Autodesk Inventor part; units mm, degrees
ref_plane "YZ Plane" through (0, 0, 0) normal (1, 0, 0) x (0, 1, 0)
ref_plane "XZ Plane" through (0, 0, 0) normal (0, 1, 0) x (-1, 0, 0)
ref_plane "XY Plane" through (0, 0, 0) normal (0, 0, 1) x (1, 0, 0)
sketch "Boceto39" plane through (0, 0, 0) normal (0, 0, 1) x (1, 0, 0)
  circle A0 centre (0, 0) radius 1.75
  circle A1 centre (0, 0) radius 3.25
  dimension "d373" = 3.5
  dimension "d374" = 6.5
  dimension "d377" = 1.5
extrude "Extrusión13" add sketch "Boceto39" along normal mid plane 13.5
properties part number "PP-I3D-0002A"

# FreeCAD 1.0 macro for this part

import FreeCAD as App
import Part
import Sketcher

V = App.Vector

doc = App.newDocument("Part")
body = doc.addObject("PartDesign::Body", "Body")

sketch1 = doc.addObject("Sketcher::SketchObject", "Sketch")
body.addObject(sketch1)
sketch1.AttachmentSupport = (doc.XY_Plane, [""])
sketch1.MapMode = "FlatFace"
sketch1.addGeometry([
    Part.Circle(V(0, 0, 0), V(0, 0, 1), 3.25),
    Part.Circle(V(0, 0, 0), V(0, 0, 1), 1.75),
], False)
sketch1.addConstraint([
    Sketcher.Constraint("Coincident", 0, 3, -1, 1),
    Sketcher.Constraint("Coincident", 1, 3, -1, 1),
    Sketcher.Constraint("Diameter", 0, 6.5),
    Sketcher.Constraint("Diameter", 1, 3.5),
])
pad1 = doc.addObject("PartDesign::Pad", "Pad")
body.addObject(pad1)
pad1.Profile = sketch1
pad1.Length = 13.5
pad1.Midplane = True

doc.recompute()
